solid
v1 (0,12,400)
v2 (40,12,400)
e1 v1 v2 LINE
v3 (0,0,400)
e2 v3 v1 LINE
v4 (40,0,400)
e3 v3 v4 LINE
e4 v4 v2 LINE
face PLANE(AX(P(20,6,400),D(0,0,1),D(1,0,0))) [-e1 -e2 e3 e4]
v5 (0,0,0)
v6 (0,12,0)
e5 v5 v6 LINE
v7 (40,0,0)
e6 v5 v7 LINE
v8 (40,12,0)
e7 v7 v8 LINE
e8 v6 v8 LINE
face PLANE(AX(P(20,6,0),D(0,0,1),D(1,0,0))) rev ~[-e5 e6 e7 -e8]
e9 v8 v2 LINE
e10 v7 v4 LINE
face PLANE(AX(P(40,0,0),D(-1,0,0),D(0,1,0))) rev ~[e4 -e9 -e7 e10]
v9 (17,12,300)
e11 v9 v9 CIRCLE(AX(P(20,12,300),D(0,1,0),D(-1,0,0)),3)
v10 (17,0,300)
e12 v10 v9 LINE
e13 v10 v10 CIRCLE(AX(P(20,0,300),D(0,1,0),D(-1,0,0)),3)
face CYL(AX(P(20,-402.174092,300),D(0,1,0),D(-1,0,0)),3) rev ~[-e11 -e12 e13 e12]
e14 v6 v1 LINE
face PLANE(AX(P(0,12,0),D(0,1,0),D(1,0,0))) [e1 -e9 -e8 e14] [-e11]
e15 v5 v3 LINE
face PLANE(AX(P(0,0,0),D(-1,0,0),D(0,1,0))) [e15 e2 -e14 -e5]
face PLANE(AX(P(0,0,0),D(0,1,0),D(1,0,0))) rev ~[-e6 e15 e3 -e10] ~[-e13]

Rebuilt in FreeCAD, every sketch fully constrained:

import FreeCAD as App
import Part
import Sketcher
from FreeCAD import Vector
Q = App.Units.Quantity


def add_polygon(sketch, points):
    """Adds a closed chain of lines whose ends are joined by coincident constraints."""
    first, n = sketch.GeometryCount, len(points)
    for a, b in zip(points, points[1:] + points[:1]):
        sketch.addGeometry(Part.LineSegment(App.Vector(*a, 0), App.Vector(*b, 0)), False)
    for i in range(n):
        sketch.addConstraint(Sketcher.Constraint("Coincident", first + i, 2, first + (i + 1) % n, 1))

doc = App.newDocument("Part")
body = doc.addObject("PartDesign::Body", "Body")

sketch1 = doc.addObject("Sketcher::SketchObject", "Sketch")
body.addObject(sketch1)
sketch1.AttachmentSupport = (doc.XY_Plane, [""])
sketch1.MapMode = "FlatFace"
add_polygon(sketch1, [(0, 12), (0, 0), (40, 0), (40, 12)])
sketch1.addConstraint(Sketcher.Constraint("Vertical", 0))
sketch1.addConstraint(Sketcher.Constraint("Horizontal", 1))
sketch1.addConstraint(Sketcher.Constraint("Vertical", 2))
sketch1.addConstraint(Sketcher.Constraint("Horizontal", 3))
sketch1.addConstraint(Sketcher.Constraint("Coincident", 0, 2, -1, 1))
sketch1.addConstraint(Sketcher.Constraint("DistanceX", 1, 1, 1, 2, Q("40 mm")))
sketch1.addConstraint(Sketcher.Constraint("DistanceY", 0, 2, 0, 1, Q("12 mm")))
pad1 = doc.addObject("PartDesign::Pad", "Pad")
body.addObject(pad1)
pad1.Profile = sketch1
pad1.Length = 400

sketch2 = doc.addObject("Sketcher::SketchObject", "Sketch001")
body.addObject(sketch2)
sketch2.AttachmentSupport = (doc.XZ_Plane, [""])
sketch2.MapMode = "FlatFace"
sketch2.addGeometry(Part.Circle(Vector(20, 300, 0), Vector(0, 0, 1), 3), False)
sketch2.addConstraint(Sketcher.Constraint("Diameter", 0, Q("6 mm")))
sketch2.addConstraint(Sketcher.Constraint("DistanceX", -1, 1, 0, 3, Q("20 mm")))
sketch2.addConstraint(Sketcher.Constraint("DistanceY", -1, 1, 0, 3, Q("300 mm")))
doc.recompute()
hole = doc.addObject("PartDesign::Hole", "Hole")
body.addObject(hole)
hole.Profile = sketch2
hole.ThreadType = "None"
hole.Diameter = 6
hole.DepthType = "ThroughAll"

doc.recompute()
